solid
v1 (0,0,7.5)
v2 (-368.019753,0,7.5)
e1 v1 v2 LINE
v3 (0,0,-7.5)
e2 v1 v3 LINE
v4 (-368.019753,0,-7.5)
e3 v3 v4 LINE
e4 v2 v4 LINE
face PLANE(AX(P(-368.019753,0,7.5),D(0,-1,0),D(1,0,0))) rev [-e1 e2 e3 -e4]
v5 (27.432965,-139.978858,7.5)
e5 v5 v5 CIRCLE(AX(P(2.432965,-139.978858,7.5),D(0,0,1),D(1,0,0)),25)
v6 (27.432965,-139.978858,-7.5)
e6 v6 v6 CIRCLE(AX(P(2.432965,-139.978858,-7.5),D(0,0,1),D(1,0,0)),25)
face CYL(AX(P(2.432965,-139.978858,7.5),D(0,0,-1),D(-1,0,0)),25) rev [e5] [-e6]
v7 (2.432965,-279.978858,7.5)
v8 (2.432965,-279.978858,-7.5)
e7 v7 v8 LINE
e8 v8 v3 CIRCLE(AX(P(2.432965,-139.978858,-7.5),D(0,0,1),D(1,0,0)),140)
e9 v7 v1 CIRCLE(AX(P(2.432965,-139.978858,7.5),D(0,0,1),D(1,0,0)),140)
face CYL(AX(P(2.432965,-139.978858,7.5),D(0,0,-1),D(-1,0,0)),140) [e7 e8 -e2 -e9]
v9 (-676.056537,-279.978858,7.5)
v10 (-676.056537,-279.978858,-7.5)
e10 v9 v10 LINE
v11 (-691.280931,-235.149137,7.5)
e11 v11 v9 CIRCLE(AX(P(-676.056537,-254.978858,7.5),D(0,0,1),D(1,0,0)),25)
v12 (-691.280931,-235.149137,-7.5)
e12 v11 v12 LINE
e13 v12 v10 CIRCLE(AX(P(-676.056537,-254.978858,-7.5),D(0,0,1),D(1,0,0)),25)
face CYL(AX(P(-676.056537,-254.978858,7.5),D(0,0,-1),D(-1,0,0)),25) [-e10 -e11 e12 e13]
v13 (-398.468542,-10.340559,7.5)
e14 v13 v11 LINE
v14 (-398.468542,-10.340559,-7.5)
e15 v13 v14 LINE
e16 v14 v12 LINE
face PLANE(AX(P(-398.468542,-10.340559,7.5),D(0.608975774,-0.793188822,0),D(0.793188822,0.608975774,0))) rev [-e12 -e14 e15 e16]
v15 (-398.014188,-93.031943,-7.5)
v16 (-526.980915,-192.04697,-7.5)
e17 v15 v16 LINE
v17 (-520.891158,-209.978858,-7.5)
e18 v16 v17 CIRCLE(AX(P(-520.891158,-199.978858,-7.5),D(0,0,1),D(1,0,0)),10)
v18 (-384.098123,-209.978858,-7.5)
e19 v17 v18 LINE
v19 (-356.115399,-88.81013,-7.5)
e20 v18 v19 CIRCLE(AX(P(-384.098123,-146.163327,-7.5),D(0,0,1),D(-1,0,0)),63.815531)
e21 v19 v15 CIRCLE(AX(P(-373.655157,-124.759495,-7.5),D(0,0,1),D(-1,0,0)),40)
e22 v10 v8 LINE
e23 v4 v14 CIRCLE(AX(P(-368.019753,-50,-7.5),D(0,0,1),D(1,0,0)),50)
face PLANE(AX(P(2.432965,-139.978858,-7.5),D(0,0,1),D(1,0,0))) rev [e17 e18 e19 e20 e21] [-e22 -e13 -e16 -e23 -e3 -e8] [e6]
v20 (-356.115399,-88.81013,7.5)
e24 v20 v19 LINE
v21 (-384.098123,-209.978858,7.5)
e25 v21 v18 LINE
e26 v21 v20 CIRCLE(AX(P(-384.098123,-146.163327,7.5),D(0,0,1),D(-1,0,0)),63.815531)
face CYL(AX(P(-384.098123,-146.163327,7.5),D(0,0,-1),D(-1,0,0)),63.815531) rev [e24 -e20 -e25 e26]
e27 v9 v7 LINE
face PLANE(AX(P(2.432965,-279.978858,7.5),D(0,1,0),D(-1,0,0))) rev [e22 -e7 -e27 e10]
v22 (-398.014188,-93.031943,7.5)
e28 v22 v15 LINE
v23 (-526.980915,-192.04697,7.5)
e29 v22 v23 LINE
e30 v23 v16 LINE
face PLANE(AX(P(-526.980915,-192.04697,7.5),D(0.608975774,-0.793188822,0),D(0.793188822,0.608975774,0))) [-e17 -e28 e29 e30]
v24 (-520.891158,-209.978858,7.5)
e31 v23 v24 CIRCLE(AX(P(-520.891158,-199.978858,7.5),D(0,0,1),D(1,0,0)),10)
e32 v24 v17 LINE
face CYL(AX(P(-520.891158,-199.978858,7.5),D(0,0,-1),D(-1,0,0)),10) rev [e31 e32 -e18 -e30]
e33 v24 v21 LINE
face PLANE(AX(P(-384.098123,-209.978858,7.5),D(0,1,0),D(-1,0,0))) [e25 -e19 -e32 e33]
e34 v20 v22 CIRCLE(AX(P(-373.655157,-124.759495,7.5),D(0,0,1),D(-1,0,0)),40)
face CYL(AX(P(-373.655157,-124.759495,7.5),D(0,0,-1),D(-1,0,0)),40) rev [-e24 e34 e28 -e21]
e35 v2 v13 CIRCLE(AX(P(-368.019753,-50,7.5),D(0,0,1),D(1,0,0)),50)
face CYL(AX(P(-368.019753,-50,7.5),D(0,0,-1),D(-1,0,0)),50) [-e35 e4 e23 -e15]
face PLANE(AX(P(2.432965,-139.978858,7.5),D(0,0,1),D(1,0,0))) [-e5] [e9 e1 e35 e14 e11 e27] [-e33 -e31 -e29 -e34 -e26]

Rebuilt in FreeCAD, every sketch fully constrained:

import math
import FreeCAD as App
import Part
import Sketcher

doc = App.newDocument("Part")
body = doc.addObject("PartDesign::Body", "Body")

sketch1 = body.newObject("Sketcher::SketchObject", "Sketch")
sketch1.AttachmentSupport = (doc.getObject("XY_Plane"), [""])
sketch1.MapMode = "FlatFace"
sketch1.addGeometry(Part.LineSegment(App.Vector(-398, -10, 0), App.Vector(-691, -235, 0)), False)
sketch1.addGeometry(Part.ArcOfCircle(Part.Circle(App.Vector(-676, -255, 0), App.Vector(0, 0, 1), 25), math.radians(128), math.radians(270)), False)
sketch1.addGeometry(Part.LineSegment(App.Vector(-676, -280, 0), App.Vector(2, -280, 0)), False)
sketch1.addGeometry(Part.ArcOfCircle(Part.Circle(App.Vector(2, -140, 0), App.Vector(0, 0, 1), 140), math.radians(-90), math.radians(91)), False)
sketch1.addGeometry(Part.LineSegment(App.Vector(0, 0, 0), App.Vector(-368, 0, 0)), False)
sketch1.addGeometry(Part.ArcOfCircle(Part.Circle(App.Vector(-368, -50, 0), App.Vector(0, 0, 1), 50), math.radians(90), math.radians(128)), False)
sketch1.addGeometry(Part.ArcOfCircle(Part.Circle(App.Vector(-521, -200, 0), App.Vector(0, 0, 1), 10), math.radians(128), math.radians(270)), False)
sketch1.addGeometry(Part.LineSegment(App.Vector(-527, -192, 0), App.Vector(-398, -93, 0)), False)
sketch1.addGeometry(Part.ArcOfCircle(Part.Circle(App.Vector(-374, -125, 0), App.Vector(0, 0, 1), 40), math.radians(64), math.radians(128)), False)
sketch1.addGeometry(Part.ArcOfCircle(Part.Circle(App.Vector(-384, -146, 0), App.Vector(0, 0, 1), 64), math.radians(-90), math.radians(64)), False)
sketch1.addGeometry(Part.LineSegment(App.Vector(-384, -210, 0), App.Vector(-521, -210, 0)), False)
sketch1.addGeometry(Part.Circle(App.Vector(2, -140, 0), App.Vector(0, 0, 1), 25), False)
sketch1.addConstraint(Sketcher.Constraint("Tangent", 0, 2, 1, 1))
sketch1.addConstraint(Sketcher.Constraint("Tangent", 1, 2, 2, 1))
sketch1.addConstraint(Sketcher.Constraint("Tangent", 2, 2, 3, 1))
sketch1.addConstraint(Sketcher.Constraint("Coincident", 3, 2, 4, 1))
sketch1.addConstraint(Sketcher.Constraint("Tangent", 4, 2, 5, 1))
sketch1.addConstraint(Sketcher.Constraint("Tangent", 5, 2, 0, 1))
sketch1.addConstraint(Sketcher.Constraint("Tangent", 6, 1, 7, 1))
sketch1.addConstraint(Sketcher.Constraint("Tangent", 7, 2, 8, 2))
sketch1.addConstraint(Sketcher.Constraint("Tangent", 8, 1, 9, 2))
sketch1.addConstraint(Sketcher.Constraint("Tangent", 9, 1, 10, 1))
sketch1.addConstraint(Sketcher.Constraint("Tangent", 10, 2, 6, 2))
sketch1.addConstraint(Sketcher.Constraint("Horizontal", 2))
sketch1.addConstraint(Sketcher.Constraint("Horizontal", 4))
sketch1.addConstraint(Sketcher.Constraint("Horizontal", 10))
sketch1.addConstraint(Sketcher.Constraint("Coincident", 3, 2, -1, 1))
sketch1.addConstraint(Sketcher.Constraint("Coincident", 11, 3, 3, 3))
sketch1.addConstraint(Sketcher.Constraint("Equal", 1, 11))
sketch1.addConstraint(Sketcher.Constraint("Parallel", 0, 7))
sketch1.addConstraint(Sketcher.Constraint("Diameter", 11, 50.0))
sketch1.addConstraint(Sketcher.Constraint("Radius", 3, 140.0))
sketch1.addConstraint(Sketcher.Constraint("Radius", 5, 50.0))
sketch1.addConstraint(Sketcher.Constraint("Radius", 6, 10.0))
sketch1.addConstraint(Sketcher.Constraint("Radius", 8, 40.0))
sketch1.addConstraint(Sketcher.Constraint("DistanceY", 1, 3, 6, 3, 55.0))
sketch1.addConstraint(Sketcher.Constraint("Radius", 9, 63.815531))
sketch1.addConstraint(Sketcher.Constraint("DistanceX", 2, 1, 2, 2, 678.489502))
sketch1.addConstraint(Sketcher.Constraint("DistanceX", 6, 3, 8, 3, 147.236001))
sketch1.addConstraint(Sketcher.Constraint("DistanceX", 8, 1, -1, 1, 356.115399))
sketch1.addConstraint(Sketcher.Constraint("Distance", 7, 162.59272))
sketch1.addConstraint(Sketcher.Constraint("DistanceX", 4, 2, 4, 1, 368.019753))
pad1 = body.newObject("PartDesign::Pad", "Pad")
pad1.Profile = sketch1
pad1.Length = 15
pad1.Midplane = True

doc.recompute()
